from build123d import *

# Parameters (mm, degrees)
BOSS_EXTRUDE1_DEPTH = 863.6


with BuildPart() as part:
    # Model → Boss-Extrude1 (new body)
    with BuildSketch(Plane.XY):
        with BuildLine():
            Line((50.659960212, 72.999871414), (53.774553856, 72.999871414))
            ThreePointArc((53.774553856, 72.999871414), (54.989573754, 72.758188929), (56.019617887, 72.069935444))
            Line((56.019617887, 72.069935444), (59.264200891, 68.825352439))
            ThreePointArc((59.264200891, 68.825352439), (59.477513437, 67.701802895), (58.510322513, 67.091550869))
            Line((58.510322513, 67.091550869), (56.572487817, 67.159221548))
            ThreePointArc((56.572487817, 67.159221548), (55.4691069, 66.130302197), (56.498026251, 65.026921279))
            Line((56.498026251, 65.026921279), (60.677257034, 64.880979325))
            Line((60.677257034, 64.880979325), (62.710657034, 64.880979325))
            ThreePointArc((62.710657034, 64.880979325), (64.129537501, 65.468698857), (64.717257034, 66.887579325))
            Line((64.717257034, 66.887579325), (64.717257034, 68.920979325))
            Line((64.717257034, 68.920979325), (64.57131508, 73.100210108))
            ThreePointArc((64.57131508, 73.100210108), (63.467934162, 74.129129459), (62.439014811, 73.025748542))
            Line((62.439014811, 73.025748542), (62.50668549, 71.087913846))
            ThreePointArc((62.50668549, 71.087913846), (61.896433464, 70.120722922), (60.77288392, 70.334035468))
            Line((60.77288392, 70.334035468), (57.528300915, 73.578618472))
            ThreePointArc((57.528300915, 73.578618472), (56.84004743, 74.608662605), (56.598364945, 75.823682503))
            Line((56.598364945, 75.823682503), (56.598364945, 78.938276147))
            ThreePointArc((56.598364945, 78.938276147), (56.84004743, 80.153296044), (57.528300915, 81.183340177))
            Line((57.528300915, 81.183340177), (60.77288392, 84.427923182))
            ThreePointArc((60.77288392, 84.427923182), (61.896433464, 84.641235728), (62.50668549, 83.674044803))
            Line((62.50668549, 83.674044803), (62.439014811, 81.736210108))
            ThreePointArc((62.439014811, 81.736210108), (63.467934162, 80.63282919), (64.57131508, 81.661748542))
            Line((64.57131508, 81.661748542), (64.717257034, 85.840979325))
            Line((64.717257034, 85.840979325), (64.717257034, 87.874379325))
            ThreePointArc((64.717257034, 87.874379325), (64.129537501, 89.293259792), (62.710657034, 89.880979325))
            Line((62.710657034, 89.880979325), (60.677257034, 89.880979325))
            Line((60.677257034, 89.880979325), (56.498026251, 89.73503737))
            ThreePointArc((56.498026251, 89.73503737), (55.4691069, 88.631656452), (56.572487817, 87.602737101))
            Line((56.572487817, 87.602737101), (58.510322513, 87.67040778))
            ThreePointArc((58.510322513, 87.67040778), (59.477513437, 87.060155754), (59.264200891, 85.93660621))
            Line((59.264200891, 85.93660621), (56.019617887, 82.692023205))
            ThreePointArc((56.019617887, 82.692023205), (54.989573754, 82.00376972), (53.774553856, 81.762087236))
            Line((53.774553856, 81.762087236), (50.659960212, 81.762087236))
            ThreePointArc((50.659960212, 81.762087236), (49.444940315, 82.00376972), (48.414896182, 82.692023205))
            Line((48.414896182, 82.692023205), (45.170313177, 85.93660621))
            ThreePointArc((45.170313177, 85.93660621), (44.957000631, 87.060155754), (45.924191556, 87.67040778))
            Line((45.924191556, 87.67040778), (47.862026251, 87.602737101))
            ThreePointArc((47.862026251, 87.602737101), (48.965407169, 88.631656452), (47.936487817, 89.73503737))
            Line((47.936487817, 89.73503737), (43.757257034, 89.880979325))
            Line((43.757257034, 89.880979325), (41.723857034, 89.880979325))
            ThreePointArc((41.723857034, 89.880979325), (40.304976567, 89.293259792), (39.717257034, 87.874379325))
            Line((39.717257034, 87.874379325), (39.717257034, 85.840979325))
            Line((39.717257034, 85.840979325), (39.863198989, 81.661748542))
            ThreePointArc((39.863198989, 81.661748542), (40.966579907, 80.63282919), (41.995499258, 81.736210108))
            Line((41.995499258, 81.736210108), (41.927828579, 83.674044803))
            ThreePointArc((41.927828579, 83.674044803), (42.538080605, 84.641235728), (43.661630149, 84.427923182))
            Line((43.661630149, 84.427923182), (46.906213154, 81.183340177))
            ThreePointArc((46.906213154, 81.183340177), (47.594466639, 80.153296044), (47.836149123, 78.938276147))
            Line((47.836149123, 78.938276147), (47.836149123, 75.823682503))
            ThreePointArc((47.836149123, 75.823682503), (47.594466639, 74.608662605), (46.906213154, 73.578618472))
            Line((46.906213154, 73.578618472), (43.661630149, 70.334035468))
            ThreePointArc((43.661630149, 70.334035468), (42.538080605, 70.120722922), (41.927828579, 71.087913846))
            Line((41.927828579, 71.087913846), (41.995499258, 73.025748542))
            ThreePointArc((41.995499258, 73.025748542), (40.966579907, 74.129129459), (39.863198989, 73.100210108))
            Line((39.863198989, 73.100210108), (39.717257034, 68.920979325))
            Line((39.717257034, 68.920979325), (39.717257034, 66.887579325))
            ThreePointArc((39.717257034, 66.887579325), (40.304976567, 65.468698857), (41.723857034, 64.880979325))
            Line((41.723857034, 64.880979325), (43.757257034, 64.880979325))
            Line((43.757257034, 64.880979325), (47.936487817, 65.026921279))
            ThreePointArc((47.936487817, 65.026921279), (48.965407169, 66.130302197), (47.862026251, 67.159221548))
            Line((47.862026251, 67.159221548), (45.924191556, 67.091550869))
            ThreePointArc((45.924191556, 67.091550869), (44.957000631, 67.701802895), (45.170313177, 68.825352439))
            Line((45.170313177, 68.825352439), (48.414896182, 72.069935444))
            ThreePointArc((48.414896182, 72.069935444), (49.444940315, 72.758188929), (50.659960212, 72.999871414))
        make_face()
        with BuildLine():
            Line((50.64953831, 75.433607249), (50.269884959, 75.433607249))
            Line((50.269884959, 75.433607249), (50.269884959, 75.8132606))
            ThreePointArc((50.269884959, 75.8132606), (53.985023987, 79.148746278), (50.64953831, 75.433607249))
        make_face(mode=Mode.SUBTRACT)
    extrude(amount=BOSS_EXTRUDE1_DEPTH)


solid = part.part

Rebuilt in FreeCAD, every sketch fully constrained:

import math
import FreeCAD as App
import Part
import Sketcher
from FreeCAD import Vector
Q = App.Units.Quantity

doc = App.newDocument("Part")
body = doc.addObject("PartDesign::Body", "Body")

sketch1 = body.newObject("Sketcher::SketchObject", "Sketch")
sketch1.AttachmentSupport = (doc.getObject("XY_Plane"), [""])
sketch1.MapMode = "FlatFace"
sketch1.addGeometry(Part.LineSegment(Vector(50.66, 73, 0), Vector(53.77, 73, 0)), False)
sketch1.addGeometry(Part.ArcOfCircle(Part.Circle(Vector(53.77, 69.82, 0), Vector(0, 0, 1), 3.18), math.radians(45), math.radians(90)), False)
sketch1.addGeometry(Part.LineSegment(Vector(56.02, 72.07, 0), Vector(59.26, 68.83, 0)), False)
sketch1.addGeometry(Part.ArcOfCircle(Part.Circle(Vector(58.55, 68.11, 0), Vector(0, 0, 1), 1.02), math.radians(-92), math.radians(45)), False)
sketch1.addGeometry(Part.LineSegment(Vector(58.51, 67.09, 0), Vector(56.57, 67.16, 0)), False)
sketch1.addGeometry(Part.ArcOfCircle(Part.Circle(Vector(56.54, 66.09, 0), Vector(0, 0, 1), 1.07), math.radians(88), math.radians(268)), False)
sketch1.addGeometry(Part.LineSegment(Vector(56.5, 65.03, 0), Vector(60.68, 64.88, 0)), False)
sketch1.addGeometry(Part.LineSegment(Vector(60.68, 64.88, 0), Vector(62.71, 64.88, 0)), False)
sketch1.addGeometry(Part.ArcOfCircle(Part.Circle(Vector(62.71, 66.89, 0), Vector(0, 0, 1), 2.01), math.radians(-90), math.radians(0)), False)
sketch1.addGeometry(Part.LineSegment(Vector(64.72, 66.89, 0), Vector(64.72, 68.92, 0)), False)
sketch1.addGeometry(Part.LineSegment(Vector(64.72, 68.92, 0), Vector(64.57, 73.1, 0)), False)
sketch1.addGeometry(Part.ArcOfCircle(Part.Circle(Vector(63.51, 73.06, 0), Vector(0, 0, 1), 1.07), math.radians(2), math.radians(182)), False)
sketch1.addGeometry(Part.LineSegment(Vector(62.44, 73.03, 0), Vector(62.51, 71.09, 0)), False)
sketch1.addGeometry(Part.ArcOfCircle(Part.Circle(Vector(61.49, 71.05, 0), Vector(0, 0, 1), 1.02), math.radians(-135), math.radians(2)), False)
sketch1.addGeometry(Part.LineSegment(Vector(60.77, 70.33, 0), Vector(57.53, 73.58, 0)), False)
sketch1.addGeometry(Part.ArcOfCircle(Part.Circle(Vector(59.77, 75.82, 0), Vector(0, 0, 1), 3.18), math.radians(-180), math.radians(-135)), False)
sketch1.addGeometry(Part.LineSegment(Vector(56.6, 75.82, 0), Vector(56.6, 78.94, 0)), False)
sketch1.addGeometry(Part.ArcOfCircle(Part.Circle(Vector(59.77, 78.94, 0), Vector(0, 0, 1), 3.18), math.radians(135), math.radians(180)), False)
sketch1.addGeometry(Part.LineSegment(Vector(57.53, 81.18, 0), Vector(60.77, 84.43, 0)), False)
sketch1.addGeometry(Part.ArcOfCircle(Part.Circle(Vector(61.49, 83.71, 0), Vector(0, 0, 1), 1.02), math.radians(-2), math.radians(135)), False)
sketch1.addGeometry(Part.LineSegment(Vector(62.51, 83.67, 0), Vector(62.44, 81.74, 0)), False)
sketch1.addGeometry(Part.ArcOfCircle(Part.Circle(Vector(63.51, 81.7, 0), Vector(0, 0, 1), 1.07), math.radians(178), math.radians(358)), False)
sketch1.addGeometry(Part.LineSegment(Vector(64.57, 81.66, 0), Vector(64.72, 85.84, 0)), False)
sketch1.addGeometry(Part.LineSegment(Vector(64.72, 85.84, 0), Vector(64.72, 87.87, 0)), False)
sketch1.addGeometry(Part.ArcOfCircle(Part.Circle(Vector(62.71, 87.87, 0), Vector(0, 0, 1), 2.01), math.radians(0), math.radians(90)), False)
sketch1.addGeometry(Part.LineSegment(Vector(62.71, 89.88, 0), Vector(60.68, 89.88, 0)), False)
sketch1.addGeometry(Part.LineSegment(Vector(60.68, 89.88, 0), Vector(56.5, 89.74, 0)), False)
sketch1.addGeometry(Part.ArcOfCircle(Part.Circle(Vector(56.54, 88.67, 0), Vector(0, 0, 1), 1.07), math.radians(92), math.radians(272)), False)
sketch1.addGeometry(Part.LineSegment(Vector(56.57, 87.6, 0), Vector(58.51, 87.67, 0)), False)
sketch1.addGeometry(Part.ArcOfCircle(Part.Circle(Vector(58.55, 86.66, 0), Vector(0, 0, 1), 1.02), math.radians(-45), math.radians(92)), False)
sketch1.addGeometry(Part.LineSegment(Vector(59.26, 85.94, 0), Vector(56.02, 82.69, 0)), False)
sketch1.addGeometry(Part.ArcOfCircle(Part.Circle(Vector(53.77, 84.94, 0), Vector(0, 0, 1), 3.18), math.radians(-90), math.radians(-45)), False)
sketch1.addGeometry(Part.LineSegment(Vector(53.77, 81.76, 0), Vector(50.66, 81.76, 0)), False)
sketch1.addGeometry(Part.ArcOfCircle(Part.Circle(Vector(50.66, 84.94, 0), Vector(0, 0, 1), 3.18), math.radians(-135), math.radians(-90)), False)
sketch1.addGeometry(Part.LineSegment(Vector(48.41, 82.69, 0), Vector(45.17, 85.94, 0)), False)
sketch1.addGeometry(Part.ArcOfCircle(Part.Circle(Vector(45.89, 86.66, 0), Vector(0, 0, 1), 1.02), math.radians(88), math.radians(225)), False)
sketch1.addGeometry(Part.LineSegment(Vector(45.92, 87.67, 0), Vector(47.86, 87.6, 0)), False)
sketch1.addGeometry(Part.ArcOfCircle(Part.Circle(Vector(47.9, 88.67, 0), Vector(0, 0, 1), 1.07), math.radians(-92), math.radians(88)), False)
sketch1.addGeometry(Part.LineSegment(Vector(47.94, 89.74, 0), Vector(43.76, 89.88, 0)), False)
sketch1.addGeometry(Part.LineSegment(Vector(43.76, 89.88, 0), Vector(41.72, 89.88, 0)), False)
sketch1.addGeometry(Part.ArcOfCircle(Part.Circle(Vector(41.72, 87.87, 0), Vector(0, 0, 1), 2.01), math.radians(90), math.radians(180)), False)
sketch1.addGeometry(Part.LineSegment(Vector(39.72, 87.87, 0), Vector(39.72, 85.84, 0)), False)
sketch1.addGeometry(Part.LineSegment(Vector(39.72, 85.84, 0), Vector(39.86, 81.66, 0)), False)
sketch1.addGeometry(Part.ArcOfCircle(Part.Circle(Vector(40.93, 81.7, 0), Vector(0, 0, 1), 1.07), math.radians(-178), math.radians(2)), False)
sketch1.addGeometry(Part.LineSegment(Vector(42, 81.74, 0), Vector(41.93, 83.67, 0)), False)
sketch1.addGeometry(Part.ArcOfCircle(Part.Circle(Vector(42.94, 83.71, 0), Vector(0, 0, 1), 1.02), math.radians(45), math.radians(182)), False)
sketch1.addGeometry(Part.LineSegment(Vector(43.66, 84.43, 0), Vector(46.91, 81.18, 0)), False)
sketch1.addGeometry(Part.ArcOfCircle(Part.Circle(Vector(44.66, 78.94, 0), Vector(0, 0, 1), 3.18), math.radians(0), math.radians(45)), False)
sketch1.addGeometry(Part.LineSegment(Vector(47.84, 78.94, 0), Vector(47.84, 75.82, 0)), False)
sketch1.addGeometry(Part.ArcOfCircle(Part.Circle(Vector(44.66, 75.82, 0), Vector(0, 0, 1), 3.18), math.radians(-45), math.radians(0)), False)
sketch1.addGeometry(Part.LineSegment(Vector(46.91, 73.58, 0), Vector(43.66, 70.33, 0)), False)
sketch1.addGeometry(Part.ArcOfCircle(Part.Circle(Vector(42.94, 71.05, 0), Vector(0, 0, 1), 1.02), math.radians(178), math.radians(315)), False)
sketch1.addGeometry(Part.LineSegment(Vector(41.93, 71.09, 0), Vector(42, 73.03, 0)), False)
sketch1.addGeometry(Part.ArcOfCircle(Part.Circle(Vector(40.93, 73.06, 0), Vector(0, 0, 1), 1.07), math.radians(-2), math.radians(178)), False)
sketch1.addGeometry(Part.LineSegment(Vector(39.86, 73.1, 0), Vector(39.72, 68.92, 0)), False)
sketch1.addGeometry(Part.LineSegment(Vector(39.72, 68.92, 0), Vector(39.72, 66.89, 0)), False)
sketch1.addGeometry(Part.ArcOfCircle(Part.Circle(Vector(41.72, 66.89, 0), Vector(0, 0, 1), 2.01), math.radians(180), math.radians(270)), False)
sketch1.addGeometry(Part.LineSegment(Vector(41.72, 64.88, 0), Vector(43.76, 64.88, 0)), False)
sketch1.addGeometry(Part.LineSegment(Vector(43.76, 64.88, 0), Vector(47.94, 65.03, 0)), False)
sketch1.addGeometry(Part.ArcOfCircle(Part.Circle(Vector(47.9, 66.09, 0), Vector(0, 0, 1), 1.07), math.radians(-88), math.radians(92)), False)
sketch1.addGeometry(Part.LineSegment(Vector(47.86, 67.16, 0), Vector(45.92, 67.09, 0)), False)
sketch1.addGeometry(Part.ArcOfCircle(Part.Circle(Vector(45.89, 68.11, 0), Vector(0, 0, 1), 1.02), math.radians(135), math.radians(272)), False)
sketch1.addGeometry(Part.LineSegment(Vector(45.17, 68.83, 0), Vector(48.41, 72.07, 0)), False)
sketch1.addGeometry(Part.ArcOfCircle(Part.Circle(Vector(50.66, 69.82, 0), Vector(0, 0, 1), 3.18), math.radians(90), math.radians(135)), False)
sketch1.addGeometry(Part.ArcOfCircle(Part.Circle(Vector(52.22, 77.38, 0), Vector(0, 0, 1), 2.5), math.radians(-129), math.radians(219)), False)
sketch1.addGeometry(Part.LineSegment(Vector(50.65, 75.43, 0), Vector(50.27, 75.43, 0)), False)
sketch1.addGeometry(Part.LineSegment(Vector(50.27, 75.43, 0), Vector(50.27, 75.81, 0)), False)
sketch1.addConstraint(Sketcher.Constraint("Tangent", 0, 2, 1, 2))
sketch1.addConstraint(Sketcher.Constraint("Tangent", 1, 1, 2, 1))
sketch1.addConstraint(Sketcher.Constraint("Tangent", 2, 2, 3, 2))
sketch1.addConstraint(Sketcher.Constraint("Tangent", 3, 1, 4, 1))
sketch1.addConstraint(Sketcher.Constraint("Tangent", 4, 2, 5, 1))
sketch1.addConstraint(Sketcher.Constraint("Tangent", 5, 2, 6, 1))
sketch1.addConstraint(Sketcher.Constraint("Coincident", 6, 2, 7, 1))
sketch1.addConstraint(Sketcher.Constraint("Tangent", 7, 2, 8, 1))
sketch1.addConstraint(Sketcher.Constraint("Tangent", 8, 2, 9, 1))
sketch1.addConstraint(Sketcher.Constraint("Coincident", 9, 2, 10, 1))
sketch1.addConstraint(Sketcher.Constraint("Tangent", 10, 2, 11, 1))
sketch1.addConstraint(Sketcher.Constraint("Tangent", 11, 2, 12, 1))
sketch1.addConstraint(Sketcher.Constraint("Tangent", 12, 2, 13, 2))
sketch1.addConstraint(Sketcher.Constraint("Tangent", 13, 1, 14, 1))
sketch1.addConstraint(Sketcher.Constraint("Tangent", 14, 2, 15, 2))
sketch1.addConstraint(Sketcher.Constraint("Tangent", 15, 1, 16, 1))
sketch1.addConstraint(Sketcher.Constraint("Tangent", 16, 2, 17, 2))
sketch1.addConstraint(Sketcher.Constraint("Tangent", 17, 1, 18, 1))
sketch1.addConstraint(Sketcher.Constraint("Tangent", 18, 2, 19, 2))
sketch1.addConstraint(Sketcher.Constraint("Tangent", 19, 1, 20, 1))
sketch1.addConstraint(Sketcher.Constraint("Tangent", 20, 2, 21, 1))
sketch1.addConstraint(Sketcher.Constraint("Tangent", 21, 2, 22, 1))
sketch1.addConstraint(Sketcher.Constraint("Coincident", 22, 2, 23, 1))
sketch1.addConstraint(Sketcher.Constraint("Tangent", 23, 2, 24, 1))
sketch1.addConstraint(Sketcher.Constraint("Tangent", 24, 2, 25, 1))
sketch1.addConstraint(Sketcher.Constraint("Coincident", 25, 2, 26, 1))
sketch1.addConstraint(Sketcher.Constraint("Tangent", 26, 2, 27, 1))
sketch1.addConstraint(Sketcher.Constraint("Tangent", 27, 2, 28, 1))
sketch1.addConstraint(Sketcher.Constraint("Tangent", 28, 2, 29, 2))
sketch1.addConstraint(Sketcher.Constraint("Tangent", 29, 1, 30, 1))
sketch1.addConstraint(Sketcher.Constraint("Tangent", 30, 2, 31, 2))
sketch1.addConstraint(Sketcher.Constraint("Tangent", 31, 1, 32, 1))
sketch1.addConstraint(Sketcher.Constraint("Tangent", 32, 2, 33, 2))
sketch1.addConstraint(Sketcher.Constraint("Tangent", 33, 1, 34, 1))
sketch1.addConstraint(Sketcher.Constraint("Tangent", 34, 2, 35, 2))
sketch1.addConstraint(Sketcher.Constraint("Tangent", 35, 1, 36, 1))
sketch1.addConstraint(Sketcher.Constraint("Tangent", 36, 2, 37, 1))
sketch1.addConstraint(Sketcher.Constraint("Tangent", 37, 2, 38, 1))
sketch1.addConstraint(Sketcher.Constraint("Coincident", 38, 2, 39, 1))
sketch1.addConstraint(Sketcher.Constraint("Tangent", 39, 2, 40, 1))
sketch1.addConstraint(Sketcher.Constraint("Tangent", 40, 2, 41, 1))
sketch1.addConstraint(Sketcher.Constraint("Coincident", 41, 2, 42, 1))
sketch1.addConstraint(Sketcher.Constraint("Tangent", 42, 2, 43, 1))
sketch1.addConstraint(Sketcher.Constraint("Tangent", 43, 2, 44, 1))
sketch1.addConstraint(Sketcher.Constraint("Tangent", 44, 2, 45, 2))
sketch1.addConstraint(Sketcher.Constraint("Tangent", 45, 1, 46, 1))
sketch1.addConstraint(Sketcher.Constraint("Tangent", 46, 2, 47, 2))
sketch1.addConstraint(Sketcher.Constraint("Tangent", 47, 1, 48, 1))
sketch1.addConstraint(Sketcher.Constraint("Tangent", 48, 2, 49, 2))
sketch1.addConstraint(Sketcher.Constraint("Tangent", 49, 1, 50, 1))
sketch1.addConstraint(Sketcher.Constraint("Tangent", 50, 2, 51, 2))
sketch1.addConstraint(Sketcher.Constraint("Tangent", 51, 1, 52, 1))
sketch1.addConstraint(Sketcher.Constraint("Tangent", 52, 2, 53, 1))
sketch1.addConstraint(Sketcher.Constraint("Tangent", 53, 2, 54, 1))
sketch1.addConstraint(Sketcher.Constraint("Coincident", 54, 2, 55, 1))
sketch1.addConstraint(Sketcher.Constraint("Tangent", 55, 2, 56, 1))
sketch1.addConstraint(Sketcher.Constraint("Tangent", 56, 2, 57, 1))
sketch1.addConstraint(Sketcher.Constraint("Coincident", 57, 2, 58, 1))
sketch1.addConstraint(Sketcher.Constraint("Tangent", 58, 2, 59, 1))
sketch1.addConstraint(Sketcher.Constraint("Tangent", 59, 2, 60, 1))
sketch1.addConstraint(Sketcher.Constraint("Tangent", 60, 2, 61, 2))
sketch1.addConstraint(Sketcher.Constraint("Tangent", 61, 1, 62, 1))
sketch1.addConstraint(Sketcher.Constraint("Tangent", 62, 2, 63, 2))
sketch1.addConstraint(Sketcher.Constraint("Tangent", 63, 1, 0, 1))
sketch1.addConstraint(Sketcher.Constraint("Coincident", 64, 1, 65, 1))
sketch1.addConstraint(Sketcher.Constraint("Coincident", 65, 2, 66, 1))
sketch1.addConstraint(Sketcher.Constraint("Coincident", 66, 2, 64, 2))
sketch1.addConstraint(Sketcher.Constraint("Horizontal", 0))
sketch1.addConstraint(Sketcher.Constraint("Horizontal", 7))
sketch1.addConstraint(Sketcher.Constraint("Vertical", 9))
sketch1.addConstraint(Sketcher.Constraint("Vertical", 16))
sketch1.addConstraint(Sketcher.Constraint("Vertical", 23))
sketch1.addConstraint(Sketcher.Constraint("Horizontal", 25))
sketch1.addConstraint(Sketcher.Constraint("Horizontal", 32))
sketch1.addConstraint(Sketcher.Constraint("Horizontal", 39))
sketch1.addConstraint(Sketcher.Constraint("Vertical", 41))
sketch1.addConstraint(Sketcher.Constraint("Vertical", 48))
sketch1.addConstraint(Sketcher.Constraint("Vertical", 55))
sketch1.addConstraint(Sketcher.Constraint("Horizontal", 57))
sketch1.addConstraint(Sketcher.Constraint("Horizontal", 65))
sketch1.addConstraint(Sketcher.Constraint("Vertical", 66))
sketch1.addConstraint(Sketcher.Constraint("Equal", 5, 11))
sketch1.addConstraint(Sketcher.Constraint("Equal", 3, 13))
sketch1.addConstraint(Sketcher.Constraint("Equal", 1, 15))
sketch1.addConstraint(Sketcher.Constraint("Equal", 15, 17))
sketch1.addConstraint(Sketcher.Constraint("Equal", 13, 19))
sketch1.addConstraint(Sketcher.Constraint("Equal", 11, 21))
sketch1.addConstraint(Sketcher.Constraint("Equal", 8, 24))
sketch1.addConstraint(Sketcher.Constraint("Equal", 21, 27))
sketch1.addConstraint(Sketcher.Constraint("Equal", 19, 29))
sketch1.addConstraint(Sketcher.Constraint("Equal", 17, 31))
sketch1.addConstraint(Sketcher.Constraint("Equal", 31, 33))
sketch1.addConstraint(Sketcher.Constraint("Equal", 29, 35))
sketch1.addConstraint(Sketcher.Constraint("Equal", 27, 37))
sketch1.addConstraint(Sketcher.Constraint("Equal", 24, 40))
sketch1.addConstraint(Sketcher.Constraint("Equal", 37, 43))
sketch1.addConstraint(Sketcher.Constraint("Equal", 35, 45))
sketch1.addConstraint(Sketcher.Constraint("Equal", 33, 47))
sketch1.addConstraint(Sketcher.Constraint("Equal", 47, 49))
sketch1.addConstraint(Sketcher.Constraint("Equal", 45, 51))
sketch1.addConstraint(Sketcher.Constraint("Equal", 43, 53))
sketch1.addConstraint(Sketcher.Constraint("Equal", 40, 56))
sketch1.addConstraint(Sketcher.Constraint("Equal", 53, 59))
sketch1.addConstraint(Sketcher.Constraint("Equal", 51, 61))
sketch1.addConstraint(Sketcher.Constraint("Equal", 49, 63))
sketch1.addConstraint(Sketcher.Constraint("Parallel", 4, 6))
sketch1.addConstraint(Sketcher.Constraint("Parallel", 10, 12))
sketch1.addConstraint(Sketcher.Constraint("Parallel", 2, 14))
sketch1.addConstraint(Sketcher.Constraint("Perpendicular", 14, 18))
sketch1.addConstraint(Sketcher.Constraint("Perpendicular", 6, 20))
sketch1.addConstraint(Sketcher.Constraint("Parallel", 20, 22))
sketch1.addConstraint(Sketcher.Constraint("Perpendicular", 12, 26))
sketch1.addConstraint(Sketcher.Constraint("Parallel", 26, 28))
sketch1.addConstraint(Sketcher.Constraint("Parallel", 18, 30))
sketch1.addConstraint(Sketcher.Constraint("Perpendicular", 30, 34))
sketch1.addConstraint(Sketcher.Constraint("Perpendicular", 22, 36))
sketch1.addConstraint(Sketcher.Constraint("Parallel", 36, 38))
sketch1.addConstraint(Sketcher.Constraint("Perpendicular", 28, 42))
sketch1.addConstraint(Sketcher.Constraint("Parallel", 42, 44))
sketch1.addConstraint(Sketcher.Constraint("Parallel", 34, 46))
sketch1.addConstraint(Sketcher.Constraint("Perpendicular", 46, 50))
sketch1.addConstraint(Sketcher.Constraint("Perpendicular", 38, 52))
sketch1.addConstraint(Sketcher.Constraint("Parallel", 52, 54))
sketch1.addConstraint(Sketcher.Constraint("Perpendicular", 44, 58))
sketch1.addConstraint(Sketcher.Constraint("Parallel", 58, 60))
sketch1.addConstraint(Sketcher.Constraint("Parallel", 50, 62))
sketch1.addConstraint(Sketcher.Constraint("Horizontal", 29, 3, 35, 3))
sketch1.addConstraint(Sketcher.Constraint("Horizontal", 27, 3, 37, 3))
sketch1.addConstraint(Sketcher.Constraint("Horizontal", 24, 3, 40, 3))
sketch1.addConstraint(Sketcher.Constraint("Horizontal", 21, 3, 43, 3))
sketch1.addConstraint(Sketcher.Constraint("Horizontal", 19, 3, 45, 3))
sketch1.addConstraint(Sketcher.Constraint("Horizontal", 17, 3, 47, 3))
sketch1.addConstraint(Sketcher.Constraint("Horizontal", 15, 3, 49, 3))
sketch1.addConstraint(Sketcher.Constraint("Horizontal", 13, 3, 51, 3))
sketch1.addConstraint(Sketcher.Constraint("Horizontal", 11, 3, 53, 3))
sketch1.addConstraint(Sketcher.Constraint("Horizontal", 8, 3, 56, 3))
sketch1.addConstraint(Sketcher.Constraint("Horizontal", 5, 3, 59, 3))
sketch1.addConstraint(Sketcher.Constraint("Horizontal", 3, 3, 61, 3))
sketch1.addConstraint(Sketcher.Constraint("Horizontal", 30, 2, 33, 1))
sketch1.addConstraint(Sketcher.Constraint("Horizontal", 22, 2, 41, 2))
sketch1.addConstraint(Sketcher.Constraint("Horizontal", 21, 2, 42, 2))
sketch1.addConstraint(Sketcher.Constraint("Horizontal", 9, 2, 54, 2))
sketch1.addConstraint(Sketcher.Constraint("Vertical", 13, 3, 19, 3))
sketch1.addConstraint(Sketcher.Constraint("Vertical", 11, 3, 21, 3))
sketch1.addConstraint(Sketcher.Constraint("Vertical", 8, 3, 24, 3))
sketch1.addConstraint(Sketcher.Constraint("Vertical", 5, 3, 27, 3))
sketch1.addConstraint(Sketcher.Constraint("Vertical", 3, 3, 29, 3))
sketch1.addConstraint(Sketcher.Constraint("Vertical", 1, 3, 31, 3))
sketch1.addConstraint(Sketcher.Constraint("Vertical", 37, 3, 59, 3))
sketch1.addConstraint(Sketcher.Constraint("Vertical", 6, 2, 25, 2))
sketch1.addConstraint(Sketcher.Constraint("Equal", 25, 39))
sketch1.addConstraint(Sketcher.Constraint("Equal", 57, 9))
sketch1.addConstraint(Sketcher.Constraint("Equal", 32, 16))
sketch1.addConstraint(Sketcher.Constraint("Equal", 9, 23))
sketch1.addConstraint(Sketcher.Constraint("Equal", 65, 66))
sketch1.addConstraint(Sketcher.Constraint("Equal", 6, 10))
sketch1.addConstraint(Sketcher.Constraint("Equal", 4, 12))
sketch1.addConstraint(Sketcher.Constraint("Equal", 2, 14))
sketch1.addConstraint(Sketcher.Constraint("Radius", 3, Q("0.04 in")))
sketch1.addConstraint(Sketcher.Constraint("Angle", 4, Q("178 deg")))
sketch1.addConstraint(Sketcher.Constraint("Radius", 1, Q("0.125 in")))
sketch1.addConstraint(Sketcher.Constraint("Radius", 5, Q("0.042 in")))
sketch1.addConstraint(Sketcher.Constraint("Radius", 8, Q("0.079 in")))
sketch1.addConstraint(Sketcher.Constraint("Radius", 64, 2.5))
sketch1.addConstraint(Sketcher.Constraint("DistanceX", 7, 1, 7, 2, 2.0334))
sketch1.addConstraint(Sketcher.Constraint("DistanceX", -1, 1, 2, 2, 59.264201))
sketch1.addConstraint(Sketcher.Constraint("DistanceX", -1, 1, 14, 2, 57.528301))
sketch1.addConstraint(Sketcher.Constraint("DistanceX", -1, 1, 42, 2, 39.863199))
sketch1.addConstraint(Sketcher.Constraint("Distance", 6, 4.181778))
sketch1.addConstraint(Sketcher.Constraint("DistanceX", 0, 1, 0, 2, 3.114594))
sketch1.addConstraint(Sketcher.Constraint("DistanceX", 65, 2, 65, 1, 0.379653))
sketch1.addConstraint(Sketcher.Constraint("DistanceY", -1, 1, 1, 3, 69.824871))
sketch1.addConstraint(Sketcher.Constraint("DistanceY", -1, 1, 64, 3, 77.380979))
sketch1.addConstraint(Sketcher.Constraint("DistanceX", -1, 1, 64, 1, 50.649538))
pad1 = body.newObject("PartDesign::Pad", "Pad")
pad1.Profile = sketch1
pad1.Length = Q("34 in")

doc.recompute()
